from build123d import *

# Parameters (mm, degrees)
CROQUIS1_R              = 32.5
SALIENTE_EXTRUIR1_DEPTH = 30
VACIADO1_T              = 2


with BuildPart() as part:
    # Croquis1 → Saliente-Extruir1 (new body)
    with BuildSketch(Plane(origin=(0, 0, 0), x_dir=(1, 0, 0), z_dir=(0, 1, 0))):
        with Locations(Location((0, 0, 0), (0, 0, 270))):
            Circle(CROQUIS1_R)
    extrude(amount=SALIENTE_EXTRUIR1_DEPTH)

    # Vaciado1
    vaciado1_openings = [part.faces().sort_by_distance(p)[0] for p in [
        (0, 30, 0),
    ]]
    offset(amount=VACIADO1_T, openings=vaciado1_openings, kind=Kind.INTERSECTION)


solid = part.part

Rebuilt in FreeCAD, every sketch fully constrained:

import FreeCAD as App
import Part
import Sketcher

V = App.Vector


def faces_at(feature, points):
    """Names of the faces that lie closest to the given points."""
    faces = feature.Shape.Faces
    near = lambda p: min(range(len(faces)), key=lambda i: faces[i].distToShape(Part.Vertex(*p))[0])
    return sorted({f"Face{near(p) + 1}" for p in points})

doc = App.newDocument("Part")
body = doc.addObject("PartDesign::Body", "Body")

# Sketch on XZ plane
sketch1 = body.newObject("Sketcher::SketchObject", "Sketch")
sketch1.AttachmentSupport = (doc.getObject("XZ_Plane"), [""])
sketch1.MapMode = "FlatFace"
sketch1.addGeometry(Part.Circle(V(0, 0, 0), V(0, 0, 1), 32), False)
sketch1.addConstraint([
    Sketcher.Constraint("Coincident", 0, 3, -1, 1),
    Sketcher.Constraint("Diameter", 0, 65.0),
])
pad1 = body.newObject("PartDesign::Pad", "Pad")
pad1.Profile = sketch1
pad1.Length = 30
pad1.Reversed = True
doc.recompute()

thickness = body.newObject("PartDesign::Thickness", "Thickness")
thickness.Base = (pad1, faces_at(pad1, [(0, 30, 0)]))
thickness.Value = 2
thickness.Reversed = False
thickness.Join = "Intersection"

doc.recompute()
